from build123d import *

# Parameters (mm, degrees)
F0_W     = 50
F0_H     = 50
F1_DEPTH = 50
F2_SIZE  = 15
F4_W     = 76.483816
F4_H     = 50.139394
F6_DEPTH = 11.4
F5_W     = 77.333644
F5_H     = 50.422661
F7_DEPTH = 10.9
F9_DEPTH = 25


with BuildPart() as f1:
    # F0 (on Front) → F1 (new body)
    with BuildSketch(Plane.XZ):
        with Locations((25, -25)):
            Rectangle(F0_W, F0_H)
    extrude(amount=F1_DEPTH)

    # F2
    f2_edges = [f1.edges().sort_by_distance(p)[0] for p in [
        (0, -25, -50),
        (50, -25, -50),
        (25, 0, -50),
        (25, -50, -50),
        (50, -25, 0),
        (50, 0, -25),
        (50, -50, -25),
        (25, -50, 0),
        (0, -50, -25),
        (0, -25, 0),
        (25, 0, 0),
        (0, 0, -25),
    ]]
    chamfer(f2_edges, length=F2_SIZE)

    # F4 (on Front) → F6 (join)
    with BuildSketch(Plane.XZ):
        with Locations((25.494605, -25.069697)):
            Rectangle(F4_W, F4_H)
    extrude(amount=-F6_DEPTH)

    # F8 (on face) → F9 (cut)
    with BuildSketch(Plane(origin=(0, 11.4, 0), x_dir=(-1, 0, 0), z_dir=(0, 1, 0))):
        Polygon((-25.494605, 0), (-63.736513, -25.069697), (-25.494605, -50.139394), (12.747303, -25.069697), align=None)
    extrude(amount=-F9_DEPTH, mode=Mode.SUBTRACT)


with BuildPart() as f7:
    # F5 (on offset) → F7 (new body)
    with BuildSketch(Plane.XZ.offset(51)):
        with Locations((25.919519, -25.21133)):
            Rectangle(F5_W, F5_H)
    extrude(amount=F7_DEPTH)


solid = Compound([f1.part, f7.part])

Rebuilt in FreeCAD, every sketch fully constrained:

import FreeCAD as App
import Part
import Sketcher

V = App.Vector


def add_polygon(sketch, points):
    """Adds a closed chain of lines whose ends are joined by coincident constraints."""
    first, n = sketch.GeometryCount, len(points)
    for a, b in zip(points, points[1:] + points[:1]):
        sketch.addGeometry(Part.LineSegment(App.Vector(*a, 0), App.Vector(*b, 0)), False)
    for i in range(n):
        sketch.addConstraint(Sketcher.Constraint("Coincident", first + i, 2, first + (i + 1) % n, 1))

doc = App.newDocument("Part")
params = doc.addObject("Spreadsheet::Sheet", "Params")
for row, (alias, value) in enumerate([
    ("sketch1_width", "50 mm"),
    ("pad1_length", "50 mm"),
    ("chamfer_size", "15 mm"),
    ("pad2_length", "11.4 mm"),
    ("pocket1_length", "25 mm"),
    ("pad3_length", "10.9 mm"),
], start=1):
    params.set(f"A{row}", alias)
    params.set(f"B{row}", "=" + value)
    params.setAlias(f"B{row}", alias)

body = doc.addObject("PartDesign::Body", "Body")
body.AllowCompound = True

# Sketch on XZ plane
sketch1 = body.newObject("Sketcher::SketchObject", "Sketch")
sketch1.AttachmentSupport = (doc.getObject("XZ_Plane"), [""])
sketch1.MapMode = "FlatFace"
add_polygon(sketch1, [(0, 0), (0, -50), (50, -50), (50, 0)])  # lines 0-3
sketch1.addConstraint([
    Sketcher.Constraint("Vertical", 0),
    Sketcher.Constraint("Horizontal", 1),
    Sketcher.Constraint("Vertical", 2),
    Sketcher.Constraint("Horizontal", 3),
    Sketcher.Constraint("Coincident", 3, 2, -1, 1),
    Sketcher.Constraint("Equal", 3, 0),
    Sketcher.Constraint("DistanceX", 1, 1, 1, 2, 50.0),
])
sketch1.setExpression("Constraints[10]", "Params.sketch1_width")
pad1 = body.newObject("PartDesign::Pad", "Pad")
pad1.Profile = sketch1
pad1.setExpression("Length", "Params.pad1_length")
doc.recompute()

chamfer = body.newObject("PartDesign::Chamfer", "Chamfer")
chamfer.Base = (pad1, ["Edge1"])
chamfer.UseAllEdges = True
chamfer.setExpression("Size", "Params.chamfer_size")

# Sketch on XZ plane
sketch2 = body.newObject("Sketcher::SketchObject", "Sketch001")
sketch2.AttachmentSupport = (doc.getObject("XZ_Plane"), [""])
sketch2.MapMode = "FlatFace"
add_polygon(sketch2, [(-13, 0), (-13, -50), (64, -50), (64, 0)])  # lines 0-3
sketch2.addConstraint([
    Sketcher.Constraint("Vertical", 0),
    Sketcher.Constraint("Horizontal", 1),
    Sketcher.Constraint("Vertical", 2),
    Sketcher.Constraint("Horizontal", 3),
    Sketcher.Constraint("PointOnObject", 2, 2, -1),
    Sketcher.Constraint("DistanceX", 1, 1, 1, 2, 76.483816),
    Sketcher.Constraint("DistanceY", 0, 2, 0, 1, 50.139394),
    Sketcher.Constraint("DistanceX", 0, 2, -1, 1, 12.747303),
])
pad2 = body.newObject("PartDesign::Pad", "Pad001")
pad2.Profile = sketch2
pad2.setExpression("Length", "Params.pad2_length")
pad2.Reversed = True

# Sketch on XZ plane
sketch3 = body.newObject("Sketcher::SketchObject", "Sketch002")
sketch3.AttachmentSupport = (doc.getObject("XZ_Plane"), [""])
sketch3.MapMode = "FlatFace"
sketch3.AttachmentOffset = App.Placement(V(0, 0, -11.4), App.Rotation())
add_polygon(sketch3, [(25, 0), (64, -25), (25, -50), (-13, -25)])  # lines 0-3
sketch3.addConstraint([
    Sketcher.Constraint("PointOnObject", 3, 2, -1),
    Sketcher.Constraint("Parallel", 0, 2),
    Sketcher.Constraint("Parallel", 1, 3),
    Sketcher.Constraint("Horizontal", 0, 2, 2, 2),
    Sketcher.Constraint("Vertical", 1, 2, 3, 2),
    Sketcher.Constraint("DistanceX", 1, 2, 0, 2, 38.241908),
    Sketcher.Constraint("Distance", 0, 45.726723),
    Sketcher.Constraint("DistanceX", -1, 1, 0, 2, 63.736513),
])
pocket1 = body.newObject("PartDesign::Pocket", "Pocket")
pocket1.Profile = sketch3
pocket1.setExpression("Length", "Params.pocket1_length")
pocket1.Reversed = True
body2 = doc.addObject("PartDesign::Body", "Body001")

# Sketch on XZ plane
sketch4 = body2.newObject("Sketcher::SketchObject", "Sketch003")
sketch4.AttachmentSupport = (doc.getObject("XZ_Plane001"), [""])
sketch4.MapMode = "FlatFace"
sketch4.AttachmentOffset = App.Placement(V(0, 0, 51), App.Rotation())
add_polygon(sketch4, [(-13, 0), (-13, -50), (65, -50), (65, 0)])  # lines 0-3
sketch4.addConstraint([
    Sketcher.Constraint("Vertical", 0),
    Sketcher.Constraint("Horizontal", 1),
    Sketcher.Constraint("Vertical", 2),
    Sketcher.Constraint("Horizontal", 3),
    Sketcher.Constraint("PointOnObject", 2, 2, -1),
    Sketcher.Constraint("DistanceY", 0, 2, 0, 1, 50.422661),
    Sketcher.Constraint("DistanceX", 1, 1, 1, 2, 77.333644),
    Sketcher.Constraint("DistanceX", -1, 1, 1, 2, 64.586341),
])
pad3 = body2.newObject("PartDesign::Pad", "Pad002")
pad3.Profile = sketch4
pad3.setExpression("Length", "Params.pad3_length")

doc.recompute()
